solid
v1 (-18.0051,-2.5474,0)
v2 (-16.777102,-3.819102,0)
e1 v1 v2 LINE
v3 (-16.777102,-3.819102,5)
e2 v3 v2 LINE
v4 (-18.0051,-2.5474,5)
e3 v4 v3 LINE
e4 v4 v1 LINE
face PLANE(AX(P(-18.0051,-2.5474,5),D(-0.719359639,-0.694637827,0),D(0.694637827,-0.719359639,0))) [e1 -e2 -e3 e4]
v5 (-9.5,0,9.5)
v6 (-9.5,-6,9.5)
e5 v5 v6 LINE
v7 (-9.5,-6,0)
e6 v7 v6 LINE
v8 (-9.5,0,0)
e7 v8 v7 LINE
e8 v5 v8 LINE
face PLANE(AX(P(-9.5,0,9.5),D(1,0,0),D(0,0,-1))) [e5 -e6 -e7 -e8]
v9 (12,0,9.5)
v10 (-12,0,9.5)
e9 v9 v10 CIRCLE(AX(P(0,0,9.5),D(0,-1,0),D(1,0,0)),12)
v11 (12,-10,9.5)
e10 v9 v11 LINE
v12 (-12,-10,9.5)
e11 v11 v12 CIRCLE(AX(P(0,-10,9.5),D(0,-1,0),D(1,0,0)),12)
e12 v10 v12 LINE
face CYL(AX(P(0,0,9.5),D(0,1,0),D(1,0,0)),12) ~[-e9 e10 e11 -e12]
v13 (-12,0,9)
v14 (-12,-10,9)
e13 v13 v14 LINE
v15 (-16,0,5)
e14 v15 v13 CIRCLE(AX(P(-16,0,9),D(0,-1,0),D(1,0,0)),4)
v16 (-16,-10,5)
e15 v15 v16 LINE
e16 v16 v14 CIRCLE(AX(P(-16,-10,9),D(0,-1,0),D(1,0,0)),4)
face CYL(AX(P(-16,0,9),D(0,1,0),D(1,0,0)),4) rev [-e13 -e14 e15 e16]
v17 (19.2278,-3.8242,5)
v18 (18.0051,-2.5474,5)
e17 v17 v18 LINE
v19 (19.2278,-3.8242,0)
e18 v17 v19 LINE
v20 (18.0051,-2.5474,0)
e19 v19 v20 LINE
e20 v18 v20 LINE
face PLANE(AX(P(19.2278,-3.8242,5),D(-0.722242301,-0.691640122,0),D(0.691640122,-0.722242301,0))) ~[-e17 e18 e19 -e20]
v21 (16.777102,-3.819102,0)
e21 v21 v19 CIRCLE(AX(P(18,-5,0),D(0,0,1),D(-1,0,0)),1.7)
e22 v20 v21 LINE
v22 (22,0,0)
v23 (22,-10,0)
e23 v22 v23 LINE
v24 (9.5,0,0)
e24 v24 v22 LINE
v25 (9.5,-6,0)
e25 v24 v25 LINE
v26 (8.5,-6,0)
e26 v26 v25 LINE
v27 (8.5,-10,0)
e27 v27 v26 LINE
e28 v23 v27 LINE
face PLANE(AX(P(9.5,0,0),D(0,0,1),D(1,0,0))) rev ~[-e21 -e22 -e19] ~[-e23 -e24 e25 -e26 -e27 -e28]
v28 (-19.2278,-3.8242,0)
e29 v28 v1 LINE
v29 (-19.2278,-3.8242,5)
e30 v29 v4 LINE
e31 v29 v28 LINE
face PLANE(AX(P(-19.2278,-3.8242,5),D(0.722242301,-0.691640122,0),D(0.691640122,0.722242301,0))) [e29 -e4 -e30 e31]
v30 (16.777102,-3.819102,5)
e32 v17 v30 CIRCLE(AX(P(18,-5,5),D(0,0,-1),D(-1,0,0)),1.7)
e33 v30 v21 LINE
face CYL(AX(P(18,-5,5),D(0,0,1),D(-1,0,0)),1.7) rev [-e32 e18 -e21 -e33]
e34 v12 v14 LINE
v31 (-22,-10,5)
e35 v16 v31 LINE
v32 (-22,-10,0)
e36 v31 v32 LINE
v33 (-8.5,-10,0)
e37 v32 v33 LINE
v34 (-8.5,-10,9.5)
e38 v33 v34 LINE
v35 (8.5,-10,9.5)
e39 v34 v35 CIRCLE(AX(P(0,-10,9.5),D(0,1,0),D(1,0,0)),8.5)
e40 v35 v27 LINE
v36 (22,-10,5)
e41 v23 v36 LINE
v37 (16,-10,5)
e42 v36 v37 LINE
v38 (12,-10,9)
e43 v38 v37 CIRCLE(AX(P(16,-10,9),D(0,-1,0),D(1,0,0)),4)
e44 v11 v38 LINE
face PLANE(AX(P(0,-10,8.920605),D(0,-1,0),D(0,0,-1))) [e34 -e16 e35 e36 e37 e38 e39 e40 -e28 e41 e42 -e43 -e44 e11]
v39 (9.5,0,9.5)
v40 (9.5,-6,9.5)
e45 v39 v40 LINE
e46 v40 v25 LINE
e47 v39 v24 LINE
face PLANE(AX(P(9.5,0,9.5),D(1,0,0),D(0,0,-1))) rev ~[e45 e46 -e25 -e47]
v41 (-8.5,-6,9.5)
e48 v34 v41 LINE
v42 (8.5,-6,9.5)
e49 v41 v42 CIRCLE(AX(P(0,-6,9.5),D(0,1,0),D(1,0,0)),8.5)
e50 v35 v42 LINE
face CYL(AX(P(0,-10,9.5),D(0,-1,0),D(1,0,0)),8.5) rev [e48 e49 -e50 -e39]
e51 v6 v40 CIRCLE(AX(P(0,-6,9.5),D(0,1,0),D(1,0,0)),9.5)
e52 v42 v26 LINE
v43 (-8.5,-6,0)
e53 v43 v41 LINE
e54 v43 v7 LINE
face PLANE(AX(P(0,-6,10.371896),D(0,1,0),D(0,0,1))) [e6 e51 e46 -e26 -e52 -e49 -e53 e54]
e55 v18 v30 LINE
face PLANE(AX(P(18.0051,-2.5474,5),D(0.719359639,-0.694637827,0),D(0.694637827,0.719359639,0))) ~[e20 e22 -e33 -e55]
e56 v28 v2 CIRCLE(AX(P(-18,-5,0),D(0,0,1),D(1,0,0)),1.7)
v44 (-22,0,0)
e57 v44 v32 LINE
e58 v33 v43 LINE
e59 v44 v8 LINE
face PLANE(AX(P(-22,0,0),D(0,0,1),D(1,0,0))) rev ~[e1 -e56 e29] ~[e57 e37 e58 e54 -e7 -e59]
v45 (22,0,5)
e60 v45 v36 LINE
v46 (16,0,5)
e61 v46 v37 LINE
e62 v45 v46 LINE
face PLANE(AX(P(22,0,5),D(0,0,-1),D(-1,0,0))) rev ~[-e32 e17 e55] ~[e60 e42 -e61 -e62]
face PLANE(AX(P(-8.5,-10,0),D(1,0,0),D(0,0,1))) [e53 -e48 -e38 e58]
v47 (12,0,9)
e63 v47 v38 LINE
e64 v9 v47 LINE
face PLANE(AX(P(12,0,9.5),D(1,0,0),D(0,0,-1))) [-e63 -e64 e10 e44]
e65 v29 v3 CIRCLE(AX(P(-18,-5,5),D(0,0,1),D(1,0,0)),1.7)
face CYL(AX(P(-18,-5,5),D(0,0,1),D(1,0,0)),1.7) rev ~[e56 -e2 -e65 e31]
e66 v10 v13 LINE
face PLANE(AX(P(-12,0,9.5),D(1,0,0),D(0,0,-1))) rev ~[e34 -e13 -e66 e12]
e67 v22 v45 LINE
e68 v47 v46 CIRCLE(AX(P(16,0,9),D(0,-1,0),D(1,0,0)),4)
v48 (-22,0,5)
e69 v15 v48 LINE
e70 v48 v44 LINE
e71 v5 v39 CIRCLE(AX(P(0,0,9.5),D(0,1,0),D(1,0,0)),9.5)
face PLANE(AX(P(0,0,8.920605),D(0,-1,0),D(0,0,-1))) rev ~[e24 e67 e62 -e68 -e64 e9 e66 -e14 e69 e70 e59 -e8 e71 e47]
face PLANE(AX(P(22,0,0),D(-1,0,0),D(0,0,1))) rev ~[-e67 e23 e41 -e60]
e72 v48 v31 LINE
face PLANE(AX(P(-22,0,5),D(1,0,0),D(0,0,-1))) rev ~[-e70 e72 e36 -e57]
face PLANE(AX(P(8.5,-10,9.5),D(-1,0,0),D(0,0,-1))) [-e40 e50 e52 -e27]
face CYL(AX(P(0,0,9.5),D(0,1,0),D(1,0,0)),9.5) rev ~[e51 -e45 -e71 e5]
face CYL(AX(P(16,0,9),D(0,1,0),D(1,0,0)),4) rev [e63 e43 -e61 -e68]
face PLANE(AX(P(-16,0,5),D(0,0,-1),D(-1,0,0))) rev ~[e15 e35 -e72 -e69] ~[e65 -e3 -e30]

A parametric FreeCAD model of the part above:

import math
import FreeCAD as App
import Part
import Sketcher

V = App.Vector
Q = App.Units.Quantity

doc = App.newDocument("Part")
body = doc.addObject("PartDesign::Body", "Body")

sketch1 = body.newObject("Sketcher::SketchObject", "Sketch")
sketch1.AttachmentSupport = (doc.getObject("XZ_Plane"), [""])
sketch1.MapMode = "FlatFace"
sketch1.addGeometry([
    Part.LineSegment(V(9.5, 0, 0), V(22, 0, 0)),
    Part.LineSegment(V(22, 0, 0), V(22, 5, 0)),
    Part.LineSegment(V(22, 5, 0), V(16, 5, 0)),
    Part.ArcOfCircle(Part.Circle(V(16, 9, 0), V(0, 0, 1), 4), math.radians(180), math.radians(270)),
    Part.LineSegment(V(12, 9, 0), V(12, 9.5, 0)),
    Part.ArcOfCircle(Part.Circle(V(0, 9.5, 0), V(0, 0, 1), 12), math.radians(0), math.radians(180)),
    Part.LineSegment(V(-12, 9.5, 0), V(-12, 9, 0)),
    Part.ArcOfCircle(Part.Circle(V(-16, 9, 0), V(0, 0, 1), 4), math.radians(-90), math.radians(0)),
    Part.LineSegment(V(-16, 5, 0), V(-22, 5, 0)),
    Part.LineSegment(V(-22, 5, 0), V(-22, 0, 0)),
    Part.LineSegment(V(-22, 0, 0), V(-9.5, 0, 0)),
    Part.LineSegment(V(-9.5, 0, 0), V(-9.5, 9.5, 0)),
    Part.ArcOfCircle(Part.Circle(V(0, 9.5, 0), V(0, 0, 1), 9.5), math.radians(0), math.radians(180)),
    Part.LineSegment(V(9.5, 9.5, 0), V(9.5, 0, 0)),
], False)
sketch1.addConstraint([
    Sketcher.Constraint("Coincident", 0, 2, 1, 1),
    Sketcher.Constraint("Coincident", 1, 2, 2, 1),
    Sketcher.Constraint("Tangent", 2, 2, 3, 2),
    Sketcher.Constraint("Tangent", 3, 1, 4, 1),
    Sketcher.Constraint("Tangent", 4, 2, 5, 1),
    Sketcher.Constraint("Tangent", 5, 2, 6, 1),
    Sketcher.Constraint("Tangent", 6, 2, 7, 2),
    Sketcher.Constraint("Tangent", 7, 1, 8, 1),
    Sketcher.Constraint("Coincident", 8, 2, 9, 1),
    Sketcher.Constraint("Coincident", 9, 2, 10, 1),
    Sketcher.Constraint("Coincident", 10, 2, 11, 1),
    Sketcher.Constraint("Tangent", 11, 2, 12, 2),
    Sketcher.Constraint("Tangent", 12, 1, 13, 1),
    Sketcher.Constraint("Coincident", 13, 2, 0, 1),
    Sketcher.Constraint("Horizontal", 0),
    Sketcher.Constraint("Vertical", 1),
    Sketcher.Constraint("Horizontal", 2),
    Sketcher.Constraint("Vertical", 4),
    Sketcher.Constraint("Vertical", 6),
    Sketcher.Constraint("Horizontal", 8),
    Sketcher.Constraint("Vertical", 9),
    Sketcher.Constraint("Horizontal", 10),
    Sketcher.Constraint("Vertical", 11),
    Sketcher.Constraint("Vertical", 13),
    Sketcher.Constraint("Coincident", 12, 3, 5, 3),
    Sketcher.Constraint("Equal", 3, 7),
    Sketcher.Constraint("Symmetric", 0, 2, 9, 2, -1, 1),
    Sketcher.Constraint("Symmetric", 3, 3, 7, 3, -2),
    Sketcher.Constraint("PointOnObject", 0, 2, -1),
    Sketcher.Constraint("DistanceX", -1, 1, 0, 2, Q("22 mm")),
    Sketcher.Constraint("Radius", 3, Q("4 mm")),
    Sketcher.Constraint("Radius", 5, Q("12 mm")),
    Sketcher.Constraint("Radius", 12, Q("9.5 mm")),
    Sketcher.Constraint("DistanceY", 1, 1, 1, 2, Q("5 mm")),
    Sketcher.Constraint("DistanceY", 4, 1, 4, 2, Q("0.5 mm")),
])
pad1 = body.newObject("PartDesign::Pad", "Pad")
pad1.Profile = sketch1
pad1.Length = 10

sketch2 = body.newObject("Sketcher::SketchObject", "Sketch001")
sketch2.AttachmentSupport = (doc.getObject("XY_Plane"), [""])
sketch2.MapMode = "FlatFace"
sketch2.AttachmentOffset = App.Placement(V(0, 0, 5), App.Rotation())
sketch2.addGeometry([
    Part.LineSegment(V(-18, -2.5, 0), V(-19.2, -3.8, 0)),
    Part.ArcOfCircle(Part.Circle(V(-18, -5, 0), V(0, 0, 1), 1.7), math.radians(136), math.radians(404)),
    Part.LineSegment(V(-16.8, -3.8, 0), V(-18, -2.5, 0)),
], False)
sketch2.addConstraint([
    Sketcher.Constraint("Tangent", 0, 2, 1, 1),
    Sketcher.Constraint("Tangent", 1, 2, 2, 1),
    Sketcher.Constraint("Coincident", 2, 2, 0, 1),
    Sketcher.Constraint("Radius", 1, Q("1.7 mm")),
    Sketcher.Constraint("DistanceX", 1, 3, -1, 1, Q("18 mm")),
    Sketcher.Constraint("DistanceY", 1, 3, -1, 1, Q("5 mm")),
    Sketcher.Constraint("Angle", 0, Q("-133.76 deg")),
    Sketcher.Constraint("DistanceX", 1, 2, -1, 1, Q("16.777 mm")),
])
pocket1 = body.newObject("PartDesign::Pocket", "Pocket")
pocket1.Profile = sketch2
pocket1.Type = "ThroughAll"
doc.recompute()

mirrored = body.newObject("PartDesign::Mirrored", "Mirrored")
mirrored.Originals = [pocket1]
mirrored.MirrorPlane = (doc.getObject("YZ_Plane"), [""])
body.Tip = mirrored

sketch3 = body.newObject("Sketcher::SketchObject", "Sketch002")
sketch3.AttachmentSupport = (doc.getObject("XZ_Plane"), [""])
sketch3.MapMode = "FlatFace"
sketch3.AttachmentOffset = App.Placement(V(0, 0, 10), App.Rotation())
sketch3.addGeometry([
    Part.LineSegment(V(-9.5, 9.5, 0), V(-9.5, 0, 0)),
    Part.LineSegment(V(-9.5, 0, 0), V(-8.5, 0, 0)),
    Part.LineSegment(V(-8.5, 0, 0), V(-8.5, 9.5, 0)),
    Part.ArcOfCircle(Part.Circle(V(0, 9.5, 0), V(0, 0, 1), 8.5), math.radians(0), math.radians(180)),
    Part.LineSegment(V(8.5, 9.5, 0), V(8.5, 0, 0)),
    Part.LineSegment(V(8.5, 0, 0), V(9.5, 0, 0)),
    Part.LineSegment(V(9.5, 0, 0), V(9.5, 9.5, 0)),
    Part.ArcOfCircle(Part.Circle(V(0, 9.5, 0), V(0, 0, 1), 9.5), math.radians(0), math.radians(180)),
], False)
sketch3.addConstraint([
    Sketcher.Constraint("Coincident", 0, 2, 1, 1),
    Sketcher.Constraint("Coincident", 1, 2, 2, 1),
    Sketcher.Constraint("Tangent", 2, 2, 3, 2),
    Sketcher.Constraint("Tangent", 3, 1, 4, 1),
    Sketcher.Constraint("Coincident", 4, 2, 5, 1),
    Sketcher.Constraint("Coincident", 5, 2, 6, 1),
    Sketcher.Constraint("Tangent", 6, 2, 7, 1),
    Sketcher.Constraint("Tangent", 7, 2, 0, 1),
    Sketcher.Constraint("Vertical", 0),
    Sketcher.Constraint("Horizontal", 1),
    Sketcher.Constraint("Vertical", 2),
    Sketcher.Constraint("Vertical", 4),
    Sketcher.Constraint("Horizontal", 5),
    Sketcher.Constraint("Vertical", 6),
    Sketcher.Constraint("Coincident", 7, 3, 3, 3),
    Sketcher.Constraint("Symmetric", 1, 2, 4, 2, -1, 1),
    Sketcher.Constraint("PointOnObject", 0, 2, -1),
    Sketcher.Constraint("Radius", 3, Q("8.5 mm")),
    Sketcher.Constraint("Radius", 7, Q("9.5 mm")),
    Sketcher.Constraint("DistanceY", 0, 2, 0, 1, Q("9.5 mm")),
])
pad2 = body.newObject("PartDesign::Pad", "Pad001")
pad2.Profile = sketch3
pad2.Length = 4
pad2.Reversed = True

doc.recompute()
